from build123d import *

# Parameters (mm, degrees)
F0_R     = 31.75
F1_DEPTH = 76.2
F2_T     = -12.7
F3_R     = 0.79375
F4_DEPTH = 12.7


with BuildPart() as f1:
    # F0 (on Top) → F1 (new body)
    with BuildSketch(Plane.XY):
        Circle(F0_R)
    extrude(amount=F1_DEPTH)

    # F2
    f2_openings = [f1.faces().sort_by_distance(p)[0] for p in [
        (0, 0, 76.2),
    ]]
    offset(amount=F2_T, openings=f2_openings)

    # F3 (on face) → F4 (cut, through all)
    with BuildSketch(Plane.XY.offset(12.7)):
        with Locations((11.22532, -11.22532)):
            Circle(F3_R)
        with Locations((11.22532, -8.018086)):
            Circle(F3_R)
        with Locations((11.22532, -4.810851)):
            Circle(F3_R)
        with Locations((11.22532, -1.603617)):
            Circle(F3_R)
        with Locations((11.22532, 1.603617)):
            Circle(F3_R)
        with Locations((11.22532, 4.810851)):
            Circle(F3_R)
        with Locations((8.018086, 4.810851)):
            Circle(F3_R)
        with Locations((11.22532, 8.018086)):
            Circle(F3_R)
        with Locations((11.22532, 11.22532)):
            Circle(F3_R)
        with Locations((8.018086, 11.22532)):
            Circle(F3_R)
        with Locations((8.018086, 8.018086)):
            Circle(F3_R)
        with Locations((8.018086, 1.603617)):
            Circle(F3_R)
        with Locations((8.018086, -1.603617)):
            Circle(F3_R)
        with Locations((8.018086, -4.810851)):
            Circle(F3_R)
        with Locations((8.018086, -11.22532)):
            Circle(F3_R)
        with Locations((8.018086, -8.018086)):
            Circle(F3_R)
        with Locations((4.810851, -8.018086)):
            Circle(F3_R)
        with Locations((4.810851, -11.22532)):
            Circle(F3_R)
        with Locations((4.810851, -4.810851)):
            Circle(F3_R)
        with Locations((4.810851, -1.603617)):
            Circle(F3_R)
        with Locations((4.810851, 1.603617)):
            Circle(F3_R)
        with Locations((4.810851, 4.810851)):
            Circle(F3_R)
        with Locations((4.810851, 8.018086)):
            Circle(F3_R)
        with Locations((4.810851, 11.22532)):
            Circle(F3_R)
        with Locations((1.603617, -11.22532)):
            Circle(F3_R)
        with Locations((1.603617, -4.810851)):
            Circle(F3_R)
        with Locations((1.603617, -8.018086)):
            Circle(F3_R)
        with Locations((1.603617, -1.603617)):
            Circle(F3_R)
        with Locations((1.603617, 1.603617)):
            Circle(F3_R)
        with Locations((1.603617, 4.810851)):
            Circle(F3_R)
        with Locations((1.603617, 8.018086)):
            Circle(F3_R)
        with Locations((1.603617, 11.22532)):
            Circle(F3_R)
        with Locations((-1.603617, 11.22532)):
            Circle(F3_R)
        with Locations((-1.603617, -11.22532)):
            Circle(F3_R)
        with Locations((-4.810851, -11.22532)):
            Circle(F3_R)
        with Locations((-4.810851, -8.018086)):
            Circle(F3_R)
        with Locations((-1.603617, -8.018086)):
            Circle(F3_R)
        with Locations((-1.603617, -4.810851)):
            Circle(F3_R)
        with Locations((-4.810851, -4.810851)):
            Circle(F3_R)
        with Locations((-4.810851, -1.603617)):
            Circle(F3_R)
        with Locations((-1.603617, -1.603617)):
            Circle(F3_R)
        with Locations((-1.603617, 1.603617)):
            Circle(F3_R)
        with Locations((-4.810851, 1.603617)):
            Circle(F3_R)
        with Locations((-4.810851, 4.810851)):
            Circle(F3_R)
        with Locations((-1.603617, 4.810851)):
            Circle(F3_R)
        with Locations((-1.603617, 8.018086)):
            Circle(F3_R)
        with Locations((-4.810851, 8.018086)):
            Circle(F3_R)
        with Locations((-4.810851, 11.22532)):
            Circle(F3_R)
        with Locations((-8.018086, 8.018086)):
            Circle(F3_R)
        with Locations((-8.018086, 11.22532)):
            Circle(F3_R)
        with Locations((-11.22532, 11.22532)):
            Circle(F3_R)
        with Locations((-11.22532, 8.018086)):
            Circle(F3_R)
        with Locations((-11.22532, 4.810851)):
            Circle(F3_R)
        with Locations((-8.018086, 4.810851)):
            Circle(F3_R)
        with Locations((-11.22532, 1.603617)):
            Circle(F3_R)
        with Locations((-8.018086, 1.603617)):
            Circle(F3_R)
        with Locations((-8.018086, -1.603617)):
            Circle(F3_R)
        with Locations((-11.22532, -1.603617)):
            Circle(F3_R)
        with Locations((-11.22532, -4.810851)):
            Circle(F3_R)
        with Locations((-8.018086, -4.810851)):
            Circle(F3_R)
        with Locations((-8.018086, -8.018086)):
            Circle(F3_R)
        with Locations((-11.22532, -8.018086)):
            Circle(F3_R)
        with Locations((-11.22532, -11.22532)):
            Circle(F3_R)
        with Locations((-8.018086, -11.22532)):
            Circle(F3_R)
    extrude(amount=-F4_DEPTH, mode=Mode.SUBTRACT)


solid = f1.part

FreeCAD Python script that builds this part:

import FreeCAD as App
import Part
import Sketcher
from FreeCAD import Vector
Q = App.Units.Quantity


def faces_at(feature, points):
    """Names of the faces that lie closest to the given points."""
    faces = feature.Shape.Faces
    near = lambda p: min(range(len(faces)), key=lambda i: faces[i].distToShape(Part.Vertex(*p))[0])
    return sorted({f"Face{near(p) + 1}" for p in points})

doc = App.newDocument("Part")
body = doc.addObject("PartDesign::Body", "Body")

sketch1 = body.newObject("Sketcher::SketchObject", "Sketch")
sketch1.AttachmentSupport = (doc.getObject("XY_Plane"), [""])
sketch1.MapMode = "FlatFace"
sketch1.addGeometry(Part.Circle(Vector(0, 0, 0), Vector(0, 0, 1), 32), False)
sketch1.addConstraint([
    Sketcher.Constraint("Coincident", 0, 3, -1, 1),
    Sketcher.Constraint("Diameter", 0, Q("2.5 in")),
])
pad1 = body.newObject("PartDesign::Pad", "Pad")
pad1.Profile = sketch1
pad1.Length = Q("3 in")
doc.recompute()

thickness = body.newObject("PartDesign::Thickness", "Thickness")
thickness.Base = (pad1, faces_at(pad1, [(0, 0, 76.2)]))
thickness.Value = Q("0.5 in")
thickness.Reversed = True
thickness.Join = "Arc"

sketch2 = body.newObject("Sketcher::SketchObject", "Sketch001")
sketch2.AttachmentSupport = (doc.getObject("XY_Plane"), [""])
sketch2.MapMode = "FlatFace"
sketch2.AttachmentOffset = App.Placement(Vector(0, 0, 0.5 * 25.4), App.Rotation())
sketch2.addGeometry([
    Part.Circle(Vector(11.2, -11.2, 0), Vector(0, 0, 1), 0.8),
    Part.Circle(Vector(11.2, -8, 0), Vector(0, 0, 1), 0.8),
    Part.Circle(Vector(11.2, -4.8, 0), Vector(0, 0, 1), 0.8),
    Part.Circle(Vector(11.2, -1.6, 0), Vector(0, 0, 1), 0.8),
    Part.Circle(Vector(11.2, 1.6, 0), Vector(0, 0, 1), 0.8),
    Part.Circle(Vector(11.2, 4.8, 0), Vector(0, 0, 1), 0.8),
    Part.Circle(Vector(8, 4.8, 0), Vector(0, 0, 1), 0.8),
    Part.Circle(Vector(11.2, 8, 0), Vector(0, 0, 1), 0.8),
    Part.Circle(Vector(11.2, 11.2, 0), Vector(0, 0, 1), 0.8),
    Part.Circle(Vector(8, 11.2, 0), Vector(0, 0, 1), 0.8),
    Part.Circle(Vector(8, 8, 0), Vector(0, 0, 1), 0.8),
    Part.Circle(Vector(8, 1.6, 0), Vector(0, 0, 1), 0.8),
    Part.Circle(Vector(8, -1.6, 0), Vector(0, 0, 1), 0.8),
    Part.Circle(Vector(8, -4.8, 0), Vector(0, 0, 1), 0.8),
    Part.Circle(Vector(8, -11.2, 0), Vector(0, 0, 1), 0.8),
    Part.Circle(Vector(8, -8, 0), Vector(0, 0, 1), 0.8),
    Part.Circle(Vector(4.8, -8, 0), Vector(0, 0, 1), 0.8),
    Part.Circle(Vector(4.8, -11.2, 0), Vector(0, 0, 1), 0.8),
    Part.Circle(Vector(4.8, -4.8, 0), Vector(0, 0, 1), 0.8),
    Part.Circle(Vector(4.8, -1.6, 0), Vector(0, 0, 1), 0.8),
    Part.Circle(Vector(4.8, 1.6, 0), Vector(0, 0, 1), 0.8),
    Part.Circle(Vector(4.8, 4.8, 0), Vector(0, 0, 1), 0.8),
    Part.Circle(Vector(4.8, 8, 0), Vector(0, 0, 1), 0.8),
    Part.Circle(Vector(4.8, 11.2, 0), Vector(0, 0, 1), 0.8),
    Part.Circle(Vector(1.6, -11.2, 0), Vector(0, 0, 1), 0.8),
    Part.Circle(Vector(1.6, -4.8, 0), Vector(0, 0, 1), 0.8),
    Part.Circle(Vector(1.6, -8, 0), Vector(0, 0, 1), 0.8),
    Part.Circle(Vector(1.6, -1.6, 0), Vector(0, 0, 1), 0.8),
    Part.Circle(Vector(1.6, 1.6, 0), Vector(0, 0, 1), 0.8),
    Part.Circle(Vector(1.6, 4.8, 0), Vector(0, 0, 1), 0.8),
    Part.Circle(Vector(1.6, 8, 0), Vector(0, 0, 1), 0.8),
    Part.Circle(Vector(1.6, 11.2, 0), Vector(0, 0, 1), 0.8),
    Part.Circle(Vector(-1.6, 11.2, 0), Vector(0, 0, 1), 0.8),
    Part.Circle(Vector(-1.6, -11.2, 0), Vector(0, 0, 1), 0.8),
    Part.Circle(Vector(-4.8, -11.2, 0), Vector(0, 0, 1), 0.8),
    Part.Circle(Vector(-4.8, -8, 0), Vector(0, 0, 1), 0.8),
    Part.Circle(Vector(-1.6, -8, 0), Vector(0, 0, 1), 0.8),
    Part.Circle(Vector(-1.6, -4.8, 0), Vector(0, 0, 1), 0.8),
    Part.Circle(Vector(-4.8, -4.8, 0), Vector(0, 0, 1), 0.8),
    Part.Circle(Vector(-4.8, -1.6, 0), Vector(0, 0, 1), 0.8),
    Part.Circle(Vector(-1.6, -1.6, 0), Vector(0, 0, 1), 0.8),
    Part.Circle(Vector(-1.6, 1.6, 0), Vector(0, 0, 1), 0.8),
    Part.Circle(Vector(-4.8, 1.6, 0), Vector(0, 0, 1), 0.8),
    Part.Circle(Vector(-4.8, 4.8, 0), Vector(0, 0, 1), 0.8),
    Part.Circle(Vector(-1.6, 4.8, 0), Vector(0, 0, 1), 0.8),
    Part.Circle(Vector(-1.6, 8, 0), Vector(0, 0, 1), 0.8),
    Part.Circle(Vector(-4.8, 8, 0), Vector(0, 0, 1), 0.8),
    Part.Circle(Vector(-4.8, 11.2, 0), Vector(0, 0, 1), 0.8),
    Part.Circle(Vector(-8, 8, 0), Vector(0, 0, 1), 0.8),
    Part.Circle(Vector(-8, 11.2, 0), Vector(0, 0, 1), 0.8),
    Part.Circle(Vector(-11.2, 11.2, 0), Vector(0, 0, 1), 0.8),
    Part.Circle(Vector(-11.2, 8, 0), Vector(0, 0, 1), 0.8),
    Part.Circle(Vector(-11.2, 4.8, 0), Vector(0, 0, 1), 0.8),
    Part.Circle(Vector(-8, 4.8, 0), Vector(0, 0, 1), 0.8),
    Part.Circle(Vector(-11.2, 1.6, 0), Vector(0, 0, 1), 0.8),
    Part.Circle(Vector(-8, 1.6, 0), Vector(0, 0, 1), 0.8),
    Part.Circle(Vector(-8, -1.6, 0), Vector(0, 0, 1), 0.8),
    Part.Circle(Vector(-11.2, -1.6, 0), Vector(0, 0, 1), 0.8),
    Part.Circle(Vector(-11.2, -4.8, 0), Vector(0, 0, 1), 0.8),
    Part.Circle(Vector(-8, -4.8, 0), Vector(0, 0, 1), 0.8),
    Part.Circle(Vector(-8, -8, 0), Vector(0, 0, 1), 0.8),
    Part.Circle(Vector(-11.2, -8, 0), Vector(0, 0, 1), 0.8),
    Part.Circle(Vector(-11.2, -11.2, 0), Vector(0, 0, 1), 0.8),
    Part.Circle(Vector(-8, -11.2, 0), Vector(0, 0, 1), 0.8),
], False)
sketch2.addConstraint([
    Sketcher.Constraint("Equal", 0, 1),
    Sketcher.Constraint("Equal", 1, 2),
    Sketcher.Constraint("Equal", 2, 3),
    Sketcher.Constraint("Equal", 3, 4),
    Sketcher.Constraint("Equal", 4, 5),
    Sketcher.Constraint("Equal", 5, 6),
    Sketcher.Constraint("Equal", 6, 7),
    Sketcher.Constraint("Equal", 7, 8),
    Sketcher.Constraint("Equal", 8, 9),
    Sketcher.Constraint("Equal", 9, 10),
    Sketcher.Constraint("Equal", 10, 11),
    Sketcher.Constraint("Equal", 11, 12),
    Sketcher.Constraint("Equal", 12, 13),
    Sketcher.Constraint("Equal", 13, 14),
    Sketcher.Constraint("Equal", 14, 15),
    Sketcher.Constraint("Equal", 15, 16),
    Sketcher.Constraint("Equal", 16, 17),
    Sketcher.Constraint("Equal", 17, 18),
    Sketcher.Constraint("Equal", 18, 19),
    Sketcher.Constraint("Equal", 19, 20),
    Sketcher.Constraint("Equal", 20, 21),
    Sketcher.Constraint("Equal", 21, 22),
    Sketcher.Constraint("Equal", 22, 23),
    Sketcher.Constraint("Equal", 23, 24),
    Sketcher.Constraint("Equal", 24, 25),
    Sketcher.Constraint("Equal", 25, 26),
    Sketcher.Constraint("Equal", 26, 27),
    Sketcher.Constraint("Equal", 27, 28),
    Sketcher.Constraint("Equal", 28, 29),
    Sketcher.Constraint("Equal", 29, 30),
    Sketcher.Constraint("Equal", 30, 31),
    Sketcher.Constraint("Equal", 31, 32),
    Sketcher.Constraint("Equal", 32, 33),
    Sketcher.Constraint("Equal", 33, 34),
    Sketcher.Constraint("Equal", 34, 35),
    Sketcher.Constraint("Equal", 35, 36),
    Sketcher.Constraint("Equal", 36, 37),
    Sketcher.Constraint("Equal", 37, 38),
    Sketcher.Constraint("Equal", 38, 39),
    Sketcher.Constraint("Equal", 39, 40),
    Sketcher.Constraint("Equal", 40, 41),
    Sketcher.Constraint("Equal", 41, 42),
    Sketcher.Constraint("Equal", 42, 43),
    Sketcher.Constraint("Equal", 43, 44),
    Sketcher.Constraint("Equal", 44, 45),
    Sketcher.Constraint("Equal", 45, 46),
    Sketcher.Constraint("Equal", 46, 47),
    Sketcher.Constraint("Equal", 47, 48),
    Sketcher.Constraint("Equal", 48, 49),
    Sketcher.Constraint("Equal", 49, 50),
    Sketcher.Constraint("Equal", 50, 51),
    Sketcher.Constraint("Equal", 51, 52),
    Sketcher.Constraint("Equal", 52, 53),
    Sketcher.Constraint("Equal", 53, 54),
    Sketcher.Constraint("Equal", 54, 55),
    Sketcher.Constraint("Equal", 55, 56),
    Sketcher.Constraint("Equal", 56, 57),
    Sketcher.Constraint("Equal", 57, 58),
    Sketcher.Constraint("Equal", 58, 59),
    Sketcher.Constraint("Equal", 59, 60),
    Sketcher.Constraint("Equal", 60, 61),
    Sketcher.Constraint("Equal", 61, 62),
    Sketcher.Constraint("Equal", 62, 63),
    Sketcher.Constraint("Symmetric", 24, 3, 32, 3, -1, 1),
    Sketcher.Constraint("Symmetric", 31, 3, 33, 3, -1, 1),
    Sketcher.Constraint("Symmetric", 23, 3, 34, 3, -1, 1),
    Sketcher.Constraint("Symmetric", 22, 3, 35, 3, -1, 1),
    Sketcher.Constraint("Symmetric", 30, 3, 36, 3, -1, 1),
    Sketcher.Constraint("Symmetric", 29, 3, 37, 3, -1, 1),
    Sketcher.Constraint("Symmetric", 21, 3, 38, 3, -1, 1),
    Sketcher.Constraint("Symmetric", 20, 3, 39, 3, -1, 1),
    Sketcher.Constraint("Symmetric", 28, 3, 40, 3, -1, 1),
    Sketcher.Constraint("Symmetric", 27, 3, 41, 3, -1, 1),
    Sketcher.Constraint("Symmetric", 19, 3, 42, 3, -1, 1),
    Sketcher.Constraint("Symmetric", 18, 3, 43, 3, -1, 1),
    Sketcher.Constraint("Symmetric", 25, 3, 44, 3, -1, 1),
    Sketcher.Constraint("Symmetric", 26, 3, 45, 3, -1, 1),
    Sketcher.Constraint("Symmetric", 16, 3, 46, 3, -1, 1),
    Sketcher.Constraint("Symmetric", 17, 3, 47, 3, -1, 1),
    Sketcher.Constraint("Symmetric", 15, 3, 48, 3, -1, 1),
    Sketcher.Constraint("Symmetric", 14, 3, 49, 3, -1, 1),
    Sketcher.Constraint("Symmetric", 0, 3, 50, 3, -1, 1),
    Sketcher.Constraint("Symmetric", 1, 3, 51, 3, -1, 1),
    Sketcher.Constraint("Symmetric", 2, 3, 52, 3, -1, 1),
    Sketcher.Constraint("Symmetric", 13, 3, 53, 3, -1, 1),
    Sketcher.Constraint("Symmetric", 3, 3, 54, 3, -1, 1),
    Sketcher.Constraint("Symmetric", 12, 3, 55, 3, -1, 1),
    Sketcher.Constraint("Symmetric", 11, 3, 56, 3, -1, 1),
    Sketcher.Constraint("Symmetric", 4, 3, 57, 3, -1, 1),
    Sketcher.Constraint("Symmetric", 5, 3, 58, 3, -1, 1),
    Sketcher.Constraint("Symmetric", 6, 3, 59, 3, -1, 1),
    Sketcher.Constraint("Symmetric", 10, 3, 60, 3, -1, 1),
    Sketcher.Constraint("Symmetric", 7, 3, 61, 3, -1, 1),
    Sketcher.Constraint("Symmetric", 8, 3, 62, 3, -1, 1),
    Sketcher.Constraint("Symmetric", 9, 3, 63, 3, -1, 1),
    Sketcher.Constraint("Symmetric", 31, 3, 32, 3, -2),
    Sketcher.Constraint("Symmetric", 17, 3, 34, 3, -2),
    Sketcher.Constraint("Symmetric", 16, 3, 35, 3, -2),
    Sketcher.Constraint("Symmetric", 26, 3, 36, 3, -2),
    Sketcher.Constraint("Symmetric", 25, 3, 37, 3, -2),
    Sketcher.Constraint("Symmetric", 18, 3, 38, 3, -2),
    Sketcher.Constraint("Symmetric", 19, 3, 39, 3, -2),
    Sketcher.Constraint("Symmetric", 27, 3, 40, 3, -2),
    Sketcher.Constraint("Symmetric", 10, 3, 48, 3, -2),
    Sketcher.Constraint("Symmetric", 9, 3, 49, 3, -2),
    Sketcher.Constraint("Symmetric", 8, 3, 50, 3, -2),
    Sketcher.Constraint("Symmetric", 7, 3, 51, 3, -2),
    Sketcher.Constraint("Symmetric", 5, 3, 52, 3, -2),
    Sketcher.Constraint("Symmetric", 6, 3, 53, 3, -2),
    Sketcher.Constraint("Symmetric", 4, 3, 54, 3, -2),
    Sketcher.Constraint("Symmetric", 11, 3, 55, 3, -2),
    Sketcher.Constraint("Horizontal", 5, 3, 6, 3),
    Sketcher.Constraint("Horizontal", 8, 3, 9, 3),
    Sketcher.Constraint("Horizontal", 7, 3, 10, 3),
    Sketcher.Constraint("Horizontal", 4, 3, 11, 3),
    Sketcher.Constraint("Horizontal", 15, 3, 16, 3),
    Sketcher.Constraint("Horizontal", 14, 3, 17, 3),
    Sketcher.Constraint("Horizontal", 13, 3, 18, 3),
    Sketcher.Constraint("Horizontal", 12, 3, 19, 3),
    Sketcher.Constraint("Horizontal", 17, 3, 24, 3),
    Sketcher.Constraint("Horizontal", 18, 3, 25, 3),
    Sketcher.Constraint("Horizontal", 16, 3, 26, 3),
    Sketcher.Constraint("Horizontal", 19, 3, 27, 3),
    Sketcher.Constraint("Vertical", 0, 3, 1, 3),
    Sketcher.Constraint("Vertical", 1, 3, 2, 3),
    Sketcher.Constraint("Vertical", 2, 3, 3, 3),
    Sketcher.Constraint("Vertical", 6, 3, 9, 3),
    Sketcher.Constraint("Vertical", 9, 3, 10, 3),
    Sketcher.Constraint("Vertical", 10, 3, 11, 3),
    Sketcher.Constraint("Vertical", 16, 3, 17, 3),
    Sketcher.Constraint("Vertical", 17, 3, 18, 3),
    Sketcher.Constraint("Vertical", 18, 3, 19, 3),
    Sketcher.Constraint("Vertical", 24, 3, 25, 3),
    Sketcher.Constraint("Vertical", 25, 3, 26, 3),
    Sketcher.Constraint("Vertical", 26, 3, 27, 3),
    Sketcher.Constraint("Diameter", 0, Q("0.0625 in")),
    Sketcher.Constraint("DistanceX", -1, 1, 0, 3, 11.22532),
    Sketcher.Constraint("DistanceY", 0, 3, -1, 1, 11.22532),
    Sketcher.Constraint("DistanceY", 2, 3, -1, 1, 4.810851),
    Sketcher.Constraint("DistanceX", -1, 1, 16, 3, 4.810851),
    Sketcher.Constraint("DistanceY", 1, 3, -1, 1, 8.018086),
    Sketcher.Constraint("DistanceY", 3, 3, -1, 1, 1.603617),
    Sketcher.Constraint("DistanceX", -1, 1, 6, 3, 8.018086),
    Sketcher.Constraint("DistanceX", -1, 1, 24, 3, 1.603617),
])
pocket1 = body.newObject("PartDesign::Pocket", "Pocket")
pocket1.Profile = sketch2
pocket1.Type = "ThroughAll"

doc.recompute()
